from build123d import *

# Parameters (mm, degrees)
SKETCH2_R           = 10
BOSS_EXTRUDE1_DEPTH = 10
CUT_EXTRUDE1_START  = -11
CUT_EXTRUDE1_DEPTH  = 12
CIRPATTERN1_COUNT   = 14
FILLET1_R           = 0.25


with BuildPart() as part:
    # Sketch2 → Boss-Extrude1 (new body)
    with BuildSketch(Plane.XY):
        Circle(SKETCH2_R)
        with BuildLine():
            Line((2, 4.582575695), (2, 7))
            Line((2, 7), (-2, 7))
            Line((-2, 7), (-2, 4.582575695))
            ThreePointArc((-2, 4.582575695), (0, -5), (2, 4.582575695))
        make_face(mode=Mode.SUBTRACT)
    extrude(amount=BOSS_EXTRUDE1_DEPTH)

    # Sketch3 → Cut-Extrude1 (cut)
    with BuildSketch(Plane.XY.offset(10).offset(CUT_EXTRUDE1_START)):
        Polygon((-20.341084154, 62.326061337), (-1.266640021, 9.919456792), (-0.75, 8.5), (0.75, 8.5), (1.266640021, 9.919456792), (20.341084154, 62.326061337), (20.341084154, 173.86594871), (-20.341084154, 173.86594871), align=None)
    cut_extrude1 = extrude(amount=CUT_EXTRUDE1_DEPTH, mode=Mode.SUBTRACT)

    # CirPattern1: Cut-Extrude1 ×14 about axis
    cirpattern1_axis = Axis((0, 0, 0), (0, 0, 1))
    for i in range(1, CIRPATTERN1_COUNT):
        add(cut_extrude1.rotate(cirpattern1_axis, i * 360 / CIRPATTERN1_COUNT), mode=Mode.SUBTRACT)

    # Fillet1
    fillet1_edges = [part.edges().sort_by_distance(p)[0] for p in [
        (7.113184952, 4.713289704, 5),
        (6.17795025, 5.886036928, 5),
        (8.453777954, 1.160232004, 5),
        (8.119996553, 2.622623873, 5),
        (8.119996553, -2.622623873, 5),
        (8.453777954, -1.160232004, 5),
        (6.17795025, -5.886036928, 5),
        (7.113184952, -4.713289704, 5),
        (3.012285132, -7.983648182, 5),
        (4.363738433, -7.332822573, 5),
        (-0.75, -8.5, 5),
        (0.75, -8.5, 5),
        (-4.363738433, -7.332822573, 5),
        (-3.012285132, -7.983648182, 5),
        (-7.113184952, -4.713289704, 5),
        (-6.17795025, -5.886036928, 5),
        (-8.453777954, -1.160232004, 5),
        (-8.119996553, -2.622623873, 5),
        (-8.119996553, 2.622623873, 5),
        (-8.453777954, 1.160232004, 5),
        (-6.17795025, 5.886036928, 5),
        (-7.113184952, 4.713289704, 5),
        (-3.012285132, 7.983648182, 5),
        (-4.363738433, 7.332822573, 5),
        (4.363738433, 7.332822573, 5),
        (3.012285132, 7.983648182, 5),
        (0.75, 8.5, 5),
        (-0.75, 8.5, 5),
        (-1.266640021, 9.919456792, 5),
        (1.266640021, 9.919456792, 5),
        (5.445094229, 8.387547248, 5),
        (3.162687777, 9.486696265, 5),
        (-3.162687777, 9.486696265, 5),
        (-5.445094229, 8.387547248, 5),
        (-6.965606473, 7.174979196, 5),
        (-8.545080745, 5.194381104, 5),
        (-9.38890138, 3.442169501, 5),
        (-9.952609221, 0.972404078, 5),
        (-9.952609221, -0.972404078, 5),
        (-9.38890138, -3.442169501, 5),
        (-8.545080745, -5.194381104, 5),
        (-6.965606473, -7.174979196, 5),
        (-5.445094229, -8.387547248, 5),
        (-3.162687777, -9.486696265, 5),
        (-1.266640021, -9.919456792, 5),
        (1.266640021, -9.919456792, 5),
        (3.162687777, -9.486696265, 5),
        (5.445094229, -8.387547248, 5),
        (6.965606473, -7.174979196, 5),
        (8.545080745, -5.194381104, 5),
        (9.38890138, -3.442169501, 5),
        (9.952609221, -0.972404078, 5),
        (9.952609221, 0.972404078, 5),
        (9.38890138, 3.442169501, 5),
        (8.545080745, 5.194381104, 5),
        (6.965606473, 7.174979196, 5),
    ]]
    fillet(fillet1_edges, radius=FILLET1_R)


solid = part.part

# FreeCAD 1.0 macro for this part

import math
import FreeCAD as App
import Part
import Sketcher
Q = App.Units.Quantity


def edges_at(feature, points):
    """Names of the edges that pass closest to the given points."""
    edges = feature.Shape.Edges
    near = lambda p: min(range(len(edges)), key=lambda i: edges[i].distToShape(Part.Vertex(*p))[0])
    return sorted({f"Edge{near(p) + 1}" for p in points})


def add_polygon(sketch, points):
    """Adds a closed chain of lines whose ends are joined by coincident constraints."""
    first, n = sketch.GeometryCount, len(points)
    for a, b in zip(points, points[1:] + points[:1]):
        sketch.addGeometry(Part.LineSegment(App.Vector(*a, 0), App.Vector(*b, 0)), False)
    for i in range(n):
        sketch.addConstraint(Sketcher.Constraint("Coincident", first + i, 2, first + (i + 1) % n, 1))

doc = App.newDocument("Part")
body = doc.addObject("PartDesign::Body", "Body")

sketch1 = body.newObject("Sketcher::SketchObject", "Sketch")
sketch1.AttachmentSupport = (doc.getObject("XY_Plane"), [""])
sketch1.MapMode = "FlatFace"
sketch1.addGeometry([
    Part.Circle(App.Vector(0, 0, 0), App.Vector(0, 0, 1), 10),
    Part.LineSegment(App.Vector(2, 7, 0), App.Vector(2, 4.6, 0)),
    Part.ArcOfCircle(Part.Circle(App.Vector(0, 0, 0), App.Vector(0, 0, 1), 5), math.radians(114), math.radians(426)),
    Part.LineSegment(App.Vector(-2, 4.6, 0), App.Vector(-2, 7, 0)),
    Part.LineSegment(App.Vector(-2, 7, 0), App.Vector(2, 7, 0)),
], False)
sketch1.addConstraint([
    Sketcher.Constraint("Coincident", 1, 2, 2, 2),
    Sketcher.Constraint("Coincident", 2, 1, 3, 1),
    Sketcher.Constraint("Coincident", 3, 2, 4, 1),
    Sketcher.Constraint("Coincident", 4, 2, 1, 1),
    Sketcher.Constraint("Vertical", 1),
    Sketcher.Constraint("Vertical", 3),
    Sketcher.Constraint("Horizontal", 4),
    Sketcher.Constraint("Coincident", 0, 3, -1, 1),
    Sketcher.Constraint("Coincident", 2, 3, -1, 1),
    Sketcher.Constraint("Horizontal", 1, 2, 2, 1),
    Sketcher.Constraint("Diameter", 0, 20.0),
    Sketcher.Constraint("Radius", 2, 5.0),
    Sketcher.Constraint("DistanceX", 4, 1, 4, 2, 4.0),
    Sketcher.Constraint("DistanceY", -1, 1, 3, 2, 7.0),
])
pad1 = body.newObject("PartDesign::Pad", "Pad")
pad1.Profile = sketch1
pad1.Length = 10

sketch2 = body.newObject("Sketcher::SketchObject", "Sketch001")
sketch2.AttachmentSupport = (doc.getObject("XY_Plane"), [""])
sketch2.MapMode = "FlatFace"
sketch2.AttachmentOffset = App.Placement(App.Vector(0, 0, -1), App.Rotation())
add_polygon(sketch2, [(-20.3, 62.3), (-1.3, 9.9), (-0.8, 8.5), (0.8, 8.5), (1.3, 9.9), (20.3, 62.3), (20.3, 173.9), (-20.3, 173.9)])
sketch2.addConstraint([
    Sketcher.Constraint("Horizontal", 2),
    Sketcher.Constraint("Vertical", 5),
    Sketcher.Constraint("Horizontal", 6),
    Sketcher.Constraint("Vertical", 7),
    Sketcher.Constraint("Symmetric", 0, 2, 3, 2, -2),
    Sketcher.Constraint("Symmetric", 4, 2, 7, 2, -2),
    Sketcher.Constraint("Parallel", 0, 1),
    Sketcher.Constraint("Parallel", 3, 4),
    Sketcher.Constraint("Angle", 0, Q("-70 deg")),
    Sketcher.Constraint("DistanceX", 2, 1, 2, 2, 1.5),
    Sketcher.Constraint("DistanceY", -1, 1, 1, 2, 8.5),
    Sketcher.Constraint("DistanceX", 6, 2, 6, 1, 40.682168),
    Sketcher.Constraint("DistanceY", 5, 1, 5, 2, 111.539887),
    Sketcher.Constraint("DistanceX", 0, 2, -1, 1, 1.26664),
])
pocket1 = body.newObject("PartDesign::Pocket", "Pocket")
pocket1.Profile = sketch2
pocket1.Length = 12
pocket1.Reversed = True
doc.recompute()

polarpattern = body.newObject("PartDesign::PolarPattern", "PolarPattern")
polarpattern.Originals = [pocket1]
polarpattern.Axis = (doc.getObject("Z_Axis"), [""])
polarpattern.Angle = 360
polarpattern.Occurrences = 14
body.Tip = polarpattern
doc.recompute()

fillet = body.newObject("PartDesign::Fillet", "Fillet")
fillet.Base = (polarpattern, edges_at(polarpattern, [
    (7.113, 4.713, 5),
    (6.178, 5.886, 5),
    (8.454, 1.16, 5),
    (8.12, 2.623, 5),
    (8.12, -2.623, 5),
    (8.454, -1.16, 5),
    (6.178, -5.886, 5),
    (7.113, -4.713, 5),
    (3.012, -7.984, 5),
    (4.364, -7.333, 5),
    (-0.75, -8.5, 5),
    (0.75, -8.5, 5),
    (-4.364, -7.333, 5),
    (-3.012, -7.984, 5),
    (-7.113, -4.713, 5),
    (-6.178, -5.886, 5),
    (-8.454, -1.16, 5),
    (-8.12, -2.623, 5),
    (-8.12, 2.623, 5),
    (-8.454, 1.16, 5),
    (-6.178, 5.886, 5),
    (-7.113, 4.713, 5),
    (-3.012, 7.984, 5),
    (-4.364, 7.333, 5),
    (4.364, 7.333, 5),
    (3.012, 7.984, 5),
    (0.75, 8.5, 5),
    (-0.75, 8.5, 5),
    (-1.267, 9.919, 5),
    (1.267, 9.919, 5),
    (5.445, 8.388, 5),
    (3.163, 9.487, 5),
    (-3.163, 9.487, 5),
    (-5.445, 8.388, 5),
    (-6.966, 7.175, 5),
    (-8.545, 5.194, 5),
    (-9.389, 3.442, 5),
    (-9.953, 0.972, 5),
    (-9.953, -0.972, 5),
    (-9.389, -3.442, 5),
    (-8.545, -5.194, 5),
    (-6.966, -7.175, 5),
    (-5.445, -8.388, 5),
    (-3.163, -9.487, 5),
    (-1.267, -9.919, 5),
    (1.267, -9.919, 5),
    (3.163, -9.487, 5),
    (5.445, -8.388, 5),
    (6.966, -7.175, 5),
    (8.545, -5.194, 5),
    (9.389, -3.442, 5),
    (9.953, -0.972, 5),
    (9.953, 0.972, 5),
    (9.389, 3.442, 5),
    (8.545, 5.194, 5),
    (6.966, 7.175, 5),
]))
fillet.Radius = 0.25

doc.recompute()
